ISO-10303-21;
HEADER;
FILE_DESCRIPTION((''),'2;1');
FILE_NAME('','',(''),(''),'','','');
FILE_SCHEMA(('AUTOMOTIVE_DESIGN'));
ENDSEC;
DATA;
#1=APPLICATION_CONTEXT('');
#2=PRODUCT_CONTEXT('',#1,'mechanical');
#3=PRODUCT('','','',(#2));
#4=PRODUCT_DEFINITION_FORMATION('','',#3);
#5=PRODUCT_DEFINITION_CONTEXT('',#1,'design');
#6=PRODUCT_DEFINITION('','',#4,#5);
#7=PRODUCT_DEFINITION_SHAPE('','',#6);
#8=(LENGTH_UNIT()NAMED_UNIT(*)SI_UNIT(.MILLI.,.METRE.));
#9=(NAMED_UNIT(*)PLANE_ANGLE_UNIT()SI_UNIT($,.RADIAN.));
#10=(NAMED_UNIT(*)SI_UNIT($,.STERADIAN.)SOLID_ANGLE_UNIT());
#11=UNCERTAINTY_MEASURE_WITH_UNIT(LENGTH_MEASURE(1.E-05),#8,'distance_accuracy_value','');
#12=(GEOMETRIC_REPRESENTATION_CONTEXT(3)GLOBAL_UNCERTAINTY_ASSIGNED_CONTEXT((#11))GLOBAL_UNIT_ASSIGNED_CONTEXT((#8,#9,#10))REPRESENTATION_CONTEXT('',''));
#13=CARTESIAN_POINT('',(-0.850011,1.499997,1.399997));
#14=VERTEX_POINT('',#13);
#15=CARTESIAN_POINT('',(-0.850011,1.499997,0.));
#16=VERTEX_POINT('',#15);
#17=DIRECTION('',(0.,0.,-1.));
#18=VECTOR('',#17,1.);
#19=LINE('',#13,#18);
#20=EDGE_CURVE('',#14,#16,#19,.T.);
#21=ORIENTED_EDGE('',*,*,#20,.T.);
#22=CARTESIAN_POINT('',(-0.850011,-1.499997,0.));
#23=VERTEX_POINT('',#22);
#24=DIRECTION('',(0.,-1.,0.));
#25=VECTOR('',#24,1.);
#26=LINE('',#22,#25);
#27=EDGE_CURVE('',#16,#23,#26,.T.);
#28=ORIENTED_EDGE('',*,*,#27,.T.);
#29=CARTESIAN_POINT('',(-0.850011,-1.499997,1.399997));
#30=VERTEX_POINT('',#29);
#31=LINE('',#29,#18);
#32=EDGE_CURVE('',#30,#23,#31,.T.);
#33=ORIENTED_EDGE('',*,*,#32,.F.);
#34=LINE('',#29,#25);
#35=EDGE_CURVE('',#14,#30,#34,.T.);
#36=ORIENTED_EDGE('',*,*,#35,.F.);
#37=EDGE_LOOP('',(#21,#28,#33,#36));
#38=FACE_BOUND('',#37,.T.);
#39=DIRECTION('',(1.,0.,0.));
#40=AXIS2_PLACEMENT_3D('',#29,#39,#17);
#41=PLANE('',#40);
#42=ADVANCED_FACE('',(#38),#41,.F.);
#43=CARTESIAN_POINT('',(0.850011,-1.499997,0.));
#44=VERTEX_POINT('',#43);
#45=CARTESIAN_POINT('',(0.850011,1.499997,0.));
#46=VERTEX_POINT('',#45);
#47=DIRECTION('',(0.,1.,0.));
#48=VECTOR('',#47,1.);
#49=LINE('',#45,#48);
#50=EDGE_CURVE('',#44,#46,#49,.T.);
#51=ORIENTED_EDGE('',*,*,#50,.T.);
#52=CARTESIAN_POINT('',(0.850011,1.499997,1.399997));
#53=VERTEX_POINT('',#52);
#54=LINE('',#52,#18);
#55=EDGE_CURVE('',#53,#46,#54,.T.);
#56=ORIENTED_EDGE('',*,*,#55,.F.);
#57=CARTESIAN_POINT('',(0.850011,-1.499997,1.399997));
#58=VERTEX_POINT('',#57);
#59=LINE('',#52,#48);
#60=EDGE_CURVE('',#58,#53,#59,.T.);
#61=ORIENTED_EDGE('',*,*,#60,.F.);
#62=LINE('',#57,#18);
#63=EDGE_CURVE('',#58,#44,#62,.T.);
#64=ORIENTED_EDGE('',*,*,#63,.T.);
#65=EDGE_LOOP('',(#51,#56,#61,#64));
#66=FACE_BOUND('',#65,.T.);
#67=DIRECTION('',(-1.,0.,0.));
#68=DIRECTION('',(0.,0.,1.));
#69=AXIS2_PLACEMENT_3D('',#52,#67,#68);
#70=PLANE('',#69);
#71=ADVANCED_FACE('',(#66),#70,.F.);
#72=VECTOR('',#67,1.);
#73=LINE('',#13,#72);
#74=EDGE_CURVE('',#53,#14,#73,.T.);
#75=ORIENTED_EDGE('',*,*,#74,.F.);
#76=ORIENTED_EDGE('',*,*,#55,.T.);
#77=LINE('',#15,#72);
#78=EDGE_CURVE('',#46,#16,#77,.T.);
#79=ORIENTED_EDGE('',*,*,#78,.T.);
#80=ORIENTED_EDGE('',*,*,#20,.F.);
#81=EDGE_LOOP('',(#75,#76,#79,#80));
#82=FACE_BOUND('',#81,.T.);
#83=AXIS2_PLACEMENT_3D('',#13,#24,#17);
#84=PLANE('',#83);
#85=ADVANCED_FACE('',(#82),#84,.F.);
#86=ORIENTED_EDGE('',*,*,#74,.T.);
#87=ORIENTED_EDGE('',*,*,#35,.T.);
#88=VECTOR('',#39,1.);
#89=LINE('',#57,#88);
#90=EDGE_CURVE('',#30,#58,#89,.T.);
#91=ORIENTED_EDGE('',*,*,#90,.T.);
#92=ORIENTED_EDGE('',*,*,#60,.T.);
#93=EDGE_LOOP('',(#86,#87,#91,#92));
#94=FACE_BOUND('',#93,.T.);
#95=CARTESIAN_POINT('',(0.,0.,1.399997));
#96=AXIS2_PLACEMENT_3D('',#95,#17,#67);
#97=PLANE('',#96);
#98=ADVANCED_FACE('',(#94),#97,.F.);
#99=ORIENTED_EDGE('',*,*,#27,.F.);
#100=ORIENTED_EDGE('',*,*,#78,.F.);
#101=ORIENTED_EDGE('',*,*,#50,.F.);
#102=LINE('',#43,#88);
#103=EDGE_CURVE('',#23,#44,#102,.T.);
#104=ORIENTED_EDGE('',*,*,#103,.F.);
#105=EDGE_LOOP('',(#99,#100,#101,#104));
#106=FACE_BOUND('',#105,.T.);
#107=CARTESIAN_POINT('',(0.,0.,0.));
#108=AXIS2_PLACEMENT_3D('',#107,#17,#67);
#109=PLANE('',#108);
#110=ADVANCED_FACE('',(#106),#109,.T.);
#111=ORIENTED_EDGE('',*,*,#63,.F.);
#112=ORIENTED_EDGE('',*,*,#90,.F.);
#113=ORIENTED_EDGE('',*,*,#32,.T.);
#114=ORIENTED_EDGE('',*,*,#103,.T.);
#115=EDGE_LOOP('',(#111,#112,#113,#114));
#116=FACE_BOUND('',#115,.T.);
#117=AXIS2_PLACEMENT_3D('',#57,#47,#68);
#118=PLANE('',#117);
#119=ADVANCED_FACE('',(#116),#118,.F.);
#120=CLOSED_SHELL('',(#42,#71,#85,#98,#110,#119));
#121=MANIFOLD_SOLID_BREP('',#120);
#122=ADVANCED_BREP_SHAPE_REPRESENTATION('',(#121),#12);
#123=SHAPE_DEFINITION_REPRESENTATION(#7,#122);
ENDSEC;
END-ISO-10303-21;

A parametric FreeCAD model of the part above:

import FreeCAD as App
import Part
import Sketcher
Q = App.Units.Quantity


def add_polygon(sketch, points):
    """Adds a closed chain of lines whose ends are joined by coincident constraints."""
    first, n = sketch.GeometryCount, len(points)
    for a, b in zip(points, points[1:] + points[:1]):
        sketch.addGeometry(Part.LineSegment(App.Vector(*a, 0), App.Vector(*b, 0)), False)
    for i in range(n):
        sketch.addConstraint(Sketcher.Constraint("Coincident", first + i, 2, first + (i + 1) % n, 1))

doc = App.newDocument("Part")
params = doc.addObject("Spreadsheet::Sheet", "Params")
for row, (alias, value) in enumerate([
    ("pad1_length", "1.399997 mm"),
], start=1):
    params.set(f"A{row}", alias)
    params.set(f"B{row}", "=" + value)
    params.setAlias(f"B{row}", alias)

body = doc.addObject("PartDesign::Body", "Body")

# Sketch on XY plane
sketch1 = doc.addObject("Sketcher::SketchObject", "Sketch")
body.addObject(sketch1)
sketch1.AttachmentSupport = (doc.XY_Plane, [""])
sketch1.MapMode = "FlatFace"
add_polygon(sketch1, [(-0.9, 1.5), (-0.9, -1.5), (0.9, -1.5), (0.9, 1.5)])  # lines 0-3
sketch1.addConstraint(Sketcher.Constraint("Vertical", 0))
sketch1.addConstraint(Sketcher.Constraint("Horizontal", 1))
sketch1.addConstraint(Sketcher.Constraint("Vertical", 2))
sketch1.addConstraint(Sketcher.Constraint("Horizontal", 3))
sketch1.addConstraint(Sketcher.Constraint("Symmetric", 0, 2, 2, 2, -1, 1))
sketch1.addConstraint(Sketcher.Constraint("DistanceX", 1, 1, 1, 2, Q("1.700022 mm")))
sketch1.addConstraint(Sketcher.Constraint("DistanceY", 0, 2, 0, 1, Q("2.999994 mm")))
pad1 = doc.addObject("PartDesign::Pad", "Pad")
body.addObject(pad1)
pad1.Profile = sketch1
pad1.setExpression("Length", "Params.pad1_length")

doc.recompute()
